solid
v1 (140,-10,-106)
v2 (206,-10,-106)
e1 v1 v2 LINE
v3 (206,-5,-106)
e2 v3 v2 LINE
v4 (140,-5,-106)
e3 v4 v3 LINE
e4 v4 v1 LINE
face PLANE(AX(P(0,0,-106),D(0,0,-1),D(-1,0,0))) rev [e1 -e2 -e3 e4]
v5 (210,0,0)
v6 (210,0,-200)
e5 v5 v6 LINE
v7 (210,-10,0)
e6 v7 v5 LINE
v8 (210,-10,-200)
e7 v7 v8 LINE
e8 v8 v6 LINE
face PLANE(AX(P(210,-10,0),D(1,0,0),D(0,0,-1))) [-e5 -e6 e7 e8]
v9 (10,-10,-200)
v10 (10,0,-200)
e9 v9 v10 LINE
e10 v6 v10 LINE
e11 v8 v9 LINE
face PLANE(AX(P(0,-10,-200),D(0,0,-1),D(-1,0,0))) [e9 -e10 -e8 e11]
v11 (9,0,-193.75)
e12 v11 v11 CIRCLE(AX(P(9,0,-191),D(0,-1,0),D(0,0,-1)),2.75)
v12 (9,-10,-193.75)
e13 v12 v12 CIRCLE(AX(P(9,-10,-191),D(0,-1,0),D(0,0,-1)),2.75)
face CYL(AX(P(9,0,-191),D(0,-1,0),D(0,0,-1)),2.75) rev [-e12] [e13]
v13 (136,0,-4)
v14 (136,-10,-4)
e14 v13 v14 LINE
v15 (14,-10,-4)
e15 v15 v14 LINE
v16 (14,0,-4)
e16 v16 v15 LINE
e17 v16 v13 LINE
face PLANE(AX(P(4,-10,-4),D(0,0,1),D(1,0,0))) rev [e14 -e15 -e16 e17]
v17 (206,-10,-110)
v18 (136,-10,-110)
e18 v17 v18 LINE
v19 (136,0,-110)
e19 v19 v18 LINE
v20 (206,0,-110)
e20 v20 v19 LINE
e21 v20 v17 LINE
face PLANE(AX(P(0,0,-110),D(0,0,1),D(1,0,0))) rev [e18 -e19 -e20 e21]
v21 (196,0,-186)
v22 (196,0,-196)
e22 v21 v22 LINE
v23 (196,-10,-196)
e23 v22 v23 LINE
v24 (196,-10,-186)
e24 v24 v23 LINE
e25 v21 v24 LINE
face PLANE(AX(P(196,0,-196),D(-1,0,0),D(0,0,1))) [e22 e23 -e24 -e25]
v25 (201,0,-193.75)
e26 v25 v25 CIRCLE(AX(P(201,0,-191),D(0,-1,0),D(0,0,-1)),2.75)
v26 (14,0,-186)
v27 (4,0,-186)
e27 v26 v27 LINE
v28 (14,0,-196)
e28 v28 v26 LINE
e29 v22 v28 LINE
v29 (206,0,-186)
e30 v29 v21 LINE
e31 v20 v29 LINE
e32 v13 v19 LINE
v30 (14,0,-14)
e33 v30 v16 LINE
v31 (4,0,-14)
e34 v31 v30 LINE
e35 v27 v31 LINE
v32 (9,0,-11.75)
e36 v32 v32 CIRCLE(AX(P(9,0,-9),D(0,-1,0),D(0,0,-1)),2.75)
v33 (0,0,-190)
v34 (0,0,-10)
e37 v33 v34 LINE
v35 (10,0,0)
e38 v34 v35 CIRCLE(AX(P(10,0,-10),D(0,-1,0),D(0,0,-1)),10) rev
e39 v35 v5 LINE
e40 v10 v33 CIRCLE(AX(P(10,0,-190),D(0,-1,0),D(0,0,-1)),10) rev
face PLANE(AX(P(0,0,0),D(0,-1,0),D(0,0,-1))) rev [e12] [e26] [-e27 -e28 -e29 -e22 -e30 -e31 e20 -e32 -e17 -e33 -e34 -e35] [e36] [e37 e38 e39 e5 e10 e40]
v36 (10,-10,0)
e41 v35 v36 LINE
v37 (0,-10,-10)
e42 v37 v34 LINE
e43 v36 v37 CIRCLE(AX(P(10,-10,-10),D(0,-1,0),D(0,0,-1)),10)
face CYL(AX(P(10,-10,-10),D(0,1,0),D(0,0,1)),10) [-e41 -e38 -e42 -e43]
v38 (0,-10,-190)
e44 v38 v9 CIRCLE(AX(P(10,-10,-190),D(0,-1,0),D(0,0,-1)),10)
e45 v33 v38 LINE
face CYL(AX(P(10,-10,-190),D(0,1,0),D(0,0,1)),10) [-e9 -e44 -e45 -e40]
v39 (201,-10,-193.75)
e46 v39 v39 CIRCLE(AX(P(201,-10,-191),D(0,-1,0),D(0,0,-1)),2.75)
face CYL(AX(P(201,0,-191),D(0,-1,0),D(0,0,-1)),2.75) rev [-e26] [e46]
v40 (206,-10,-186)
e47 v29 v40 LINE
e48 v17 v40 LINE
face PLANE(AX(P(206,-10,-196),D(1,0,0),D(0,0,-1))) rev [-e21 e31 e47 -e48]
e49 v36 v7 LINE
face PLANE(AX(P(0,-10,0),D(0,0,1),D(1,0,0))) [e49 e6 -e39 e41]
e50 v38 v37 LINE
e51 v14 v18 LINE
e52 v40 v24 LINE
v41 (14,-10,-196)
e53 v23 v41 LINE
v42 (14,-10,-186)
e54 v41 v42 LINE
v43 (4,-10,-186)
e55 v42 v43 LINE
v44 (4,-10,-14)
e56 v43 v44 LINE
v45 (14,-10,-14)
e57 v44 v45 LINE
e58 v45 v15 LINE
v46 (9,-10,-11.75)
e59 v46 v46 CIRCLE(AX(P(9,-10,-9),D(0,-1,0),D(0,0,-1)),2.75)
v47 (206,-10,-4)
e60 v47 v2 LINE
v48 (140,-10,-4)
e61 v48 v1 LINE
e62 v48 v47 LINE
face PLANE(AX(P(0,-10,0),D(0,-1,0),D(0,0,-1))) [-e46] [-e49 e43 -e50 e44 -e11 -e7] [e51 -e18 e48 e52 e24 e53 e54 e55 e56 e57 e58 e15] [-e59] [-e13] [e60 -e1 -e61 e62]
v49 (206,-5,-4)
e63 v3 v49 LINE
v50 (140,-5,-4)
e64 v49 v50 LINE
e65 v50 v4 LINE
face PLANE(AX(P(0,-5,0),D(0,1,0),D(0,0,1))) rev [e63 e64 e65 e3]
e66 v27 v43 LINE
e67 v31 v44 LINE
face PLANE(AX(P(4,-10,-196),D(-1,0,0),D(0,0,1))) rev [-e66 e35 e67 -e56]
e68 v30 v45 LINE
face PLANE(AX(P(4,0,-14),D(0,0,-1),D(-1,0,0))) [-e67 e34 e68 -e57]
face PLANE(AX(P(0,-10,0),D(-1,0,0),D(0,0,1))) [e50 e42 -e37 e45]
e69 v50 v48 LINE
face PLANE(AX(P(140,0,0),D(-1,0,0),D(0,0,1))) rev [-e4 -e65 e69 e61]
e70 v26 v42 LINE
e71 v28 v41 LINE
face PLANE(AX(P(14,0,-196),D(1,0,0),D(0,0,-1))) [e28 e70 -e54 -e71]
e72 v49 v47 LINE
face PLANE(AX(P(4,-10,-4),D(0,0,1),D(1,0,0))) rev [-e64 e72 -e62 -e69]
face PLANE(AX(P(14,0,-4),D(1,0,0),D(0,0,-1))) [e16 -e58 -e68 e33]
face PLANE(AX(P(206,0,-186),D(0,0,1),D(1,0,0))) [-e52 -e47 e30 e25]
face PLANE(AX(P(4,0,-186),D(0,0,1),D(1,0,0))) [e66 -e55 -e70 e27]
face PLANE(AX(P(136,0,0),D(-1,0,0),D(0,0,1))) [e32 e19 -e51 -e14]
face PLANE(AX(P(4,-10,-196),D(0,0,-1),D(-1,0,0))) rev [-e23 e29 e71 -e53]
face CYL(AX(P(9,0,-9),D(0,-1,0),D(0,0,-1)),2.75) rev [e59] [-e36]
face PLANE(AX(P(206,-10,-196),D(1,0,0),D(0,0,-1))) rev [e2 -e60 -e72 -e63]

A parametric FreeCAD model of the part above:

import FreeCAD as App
import Part
import Sketcher


def edges_at(feature, points):
    """Names of the edges that pass closest to the given points."""
    edges = feature.Shape.Edges
    near = lambda p: min(range(len(edges)), key=lambda i: edges[i].distToShape(Part.Vertex(*p))[0])
    return sorted({f"Edge{near(p) + 1}" for p in points})

doc = App.newDocument("Part")
body = doc.addObject("PartDesign::Body", "Body")

# Sketch on XZ plane
sketch1 = body.newObject("Sketcher::SketchObject", "Sketch")
sketch1.AttachmentSupport = (doc.getObject("XZ_Plane"), [""])
sketch1.MapMode = "FlatFace"
sketch1.addGeometry([
    Part.LineSegment(App.Vector(0, -200, 0), App.Vector(0, 0, 0)),  # 0
    Part.LineSegment(App.Vector(0, 0, 0), App.Vector(210, 0, 0)),  # 1
    Part.LineSegment(App.Vector(210, 0, 0), App.Vector(210, -200, 0)),  # 2
    Part.LineSegment(App.Vector(210, -200, 0), App.Vector(0, -200, 0)),  # 3
    Part.LineSegment(App.Vector(206, -4, 0), App.Vector(4, -4, 0)),  # 4
    Part.LineSegment(App.Vector(4, -4, 0), App.Vector(4, -196, 0)),  # 5
    Part.LineSegment(App.Vector(4, -196, 0), App.Vector(206, -196, 0)),  # 6
    Part.LineSegment(App.Vector(206, -196, 0), App.Vector(206, -4, 0)),  # 7
], False)
sketch1.addConstraint([
    Sketcher.Constraint("Coincident", 0, 2, 1, 1),
    Sketcher.Constraint("Coincident", 1, 2, 2, 1),
    Sketcher.Constraint("Coincident", 2, 2, 3, 1),
    Sketcher.Constraint("Coincident", 3, 2, 0, 1),
    Sketcher.Constraint("Coincident", 4, 2, 5, 1),
    Sketcher.Constraint("Coincident", 5, 2, 6, 1),
    Sketcher.Constraint("Coincident", 6, 2, 7, 1),
    Sketcher.Constraint("Coincident", 7, 2, 4, 1),
    Sketcher.Constraint("Vertical", 0),
    Sketcher.Constraint("Horizontal", 1),
    Sketcher.Constraint("Vertical", 2),
    Sketcher.Constraint("Horizontal", 3),
    Sketcher.Constraint("Horizontal", 4),
    Sketcher.Constraint("Vertical", 5),
    Sketcher.Constraint("Horizontal", 6),
    Sketcher.Constraint("Vertical", 7),
    Sketcher.Constraint("Coincident", 0, 2, -1, 1),
    Sketcher.Constraint("DistanceX", 1, 1, 1, 2, 210.0),
    Sketcher.Constraint("DistanceX", 4, 2, 4, 1, 202.0),
    Sketcher.Constraint("DistanceY", 0, 1, 0, 2, 200.0),
    Sketcher.Constraint("DistanceY", 5, 2, 5, 1, 192.0),
    Sketcher.Constraint("DistanceX", -1, 1, 4, 2, 4.0),
    Sketcher.Constraint("DistanceY", 4, 2, -1, 1, 4.0),
])
pad1 = body.newObject("PartDesign::Pad", "Pad")
pad1.Profile = sketch1
pad1.Length = 10

# Sketch on XZ plane
sketch2 = body.newObject("Sketcher::SketchObject", "Sketch001")
sketch2.AttachmentSupport = (doc.getObject("XZ_Plane"), [""])
sketch2.MapMode = "FlatFace"
sketch2.AttachmentOffset = App.Placement(App.Vector(0, 0, 10), App.Rotation())
sketch2.addGeometry([
    Part.LineSegment(App.Vector(140, 0, 0), App.Vector(140, -106, 0)),
    Part.LineSegment(App.Vector(140, -106, 0), App.Vector(210, -106, 0)),
    Part.LineSegment(App.Vector(210, -106, 0), App.Vector(210, 0, 0)),
    Part.LineSegment(App.Vector(210, 0, 0), App.Vector(140, 0, 0)),
], False)
sketch2.addConstraint([
    Sketcher.Constraint("Coincident", 0, 2, 1, 1),
    Sketcher.Constraint("Coincident", 1, 2, 2, 1),
    Sketcher.Constraint("Coincident", 2, 2, 3, 1),
    Sketcher.Constraint("Coincident", 3, 2, 0, 1),
    Sketcher.Constraint("Vertical", 0),
    Sketcher.Constraint("Horizontal", 1),
    Sketcher.Constraint("Vertical", 2),
    Sketcher.Constraint("Horizontal", 3),
    Sketcher.Constraint("PointOnObject", 2, 2, -1),
    Sketcher.Constraint("DistanceX", 1, 1, 1, 2, 70.0),
    Sketcher.Constraint("DistanceY", 0, 2, 0, 1, 106.0),
    Sketcher.Constraint("DistanceX", -1, 1, 0, 2, 140.0),
])
pad2 = body.newObject("PartDesign::Pad", "Pad001")
pad2.Profile = sketch2
pad2.Length = 10
pad2.Reversed = True

# Sketch on XZ plane
sketch3 = body.newObject("Sketcher::SketchObject", "Sketch002")
sketch3.AttachmentSupport = (doc.getObject("XZ_Plane"), [""])
sketch3.MapMode = "FlatFace"
sketch3.AttachmentOffset = App.Placement(App.Vector(0, 0, 10), App.Rotation())
sketch3.addGeometry([
    Part.LineSegment(App.Vector(140, -4, 0), App.Vector(140, -106, 0)),
    Part.LineSegment(App.Vector(140, -106, 0), App.Vector(206, -106, 0)),
    Part.LineSegment(App.Vector(206, -106, 0), App.Vector(206, -4, 0)),
    Part.LineSegment(App.Vector(206, -4, 0), App.Vector(140, -4, 0)),
], False)
sketch3.addConstraint([
    Sketcher.Constraint("Coincident", 0, 2, 1, 1),
    Sketcher.Constraint("Coincident", 1, 2, 2, 1),
    Sketcher.Constraint("Coincident", 2, 2, 3, 1),
    Sketcher.Constraint("Coincident", 3, 2, 0, 1),
    Sketcher.Constraint("Vertical", 0),
    Sketcher.Constraint("Horizontal", 1),
    Sketcher.Constraint("Vertical", 2),
    Sketcher.Constraint("Horizontal", 3),
    Sketcher.Constraint("DistanceX", 1, 1, 1, 2, 66.0),
    Sketcher.Constraint("DistanceY", 0, 2, 0, 1, 102.0),
    Sketcher.Constraint("DistanceX", -1, 1, 0, 2, 140.0),
    Sketcher.Constraint("DistanceY", 0, 2, -1, 1, 106.0),
])
pocket1 = body.newObject("PartDesign::Pocket", "Pocket")
pocket1.Profile = sketch3
pocket1.Length = 5

# Sketch on XZ plane
sketch4 = body.newObject("Sketcher::SketchObject", "Sketch003")
sketch4.AttachmentSupport = (doc.getObject("XZ_Plane"), [""])
sketch4.MapMode = "FlatFace"
sketch4.AttachmentOffset = App.Placement(App.Vector(0, 0, 10), App.Rotation())
sketch4.addGeometry([
    Part.LineSegment(App.Vector(4, -4, 0), App.Vector(4, -14, 0)),  # 0
    Part.LineSegment(App.Vector(4, -14, 0), App.Vector(14, -14, 0)),  # 1
    Part.LineSegment(App.Vector(14, -14, 0), App.Vector(14, -4, 0)),  # 2
    Part.LineSegment(App.Vector(14, -4, 0), App.Vector(4, -4, 0)),  # 3
    Part.Circle(App.Vector(9, -9, 0), App.Vector(0, 0, 1), 2.8),  # 4
    Part.LineSegment(App.Vector(4, -186, 0), App.Vector(4, -196, 0)),  # 5
    Part.LineSegment(App.Vector(4, -196, 0), App.Vector(14, -196, 0)),  # 6
    Part.LineSegment(App.Vector(14, -196, 0), App.Vector(14, -186, 0)),  # 7
    Part.LineSegment(App.Vector(14, -186, 0), App.Vector(4, -186, 0)),  # 8
    Part.Circle(App.Vector(9, -191, 0), App.Vector(0, 0, 1), 2.8),  # 9
    Part.LineSegment(App.Vector(196, -186, 0), App.Vector(196, -196, 0)),  # 10
    Part.LineSegment(App.Vector(196, -196, 0), App.Vector(206, -196, 0)),  # 11
    Part.LineSegment(App.Vector(206, -196, 0), App.Vector(206, -186, 0)),  # 12
    Part.LineSegment(App.Vector(206, -186, 0), App.Vector(196, -186, 0)),  # 13
    Part.Circle(App.Vector(201, -191, 0), App.Vector(0, 0, 1), 2.8),  # 14
], False)
sketch4.addConstraint([
    Sketcher.Constraint("Coincident", 0, 2, 1, 1),
    Sketcher.Constraint("Coincident", 1, 2, 2, 1),
    Sketcher.Constraint("Coincident", 2, 2, 3, 1),
    Sketcher.Constraint("Coincident", 3, 2, 0, 1),
    Sketcher.Constraint("Coincident", 5, 2, 6, 1),
    Sketcher.Constraint("Coincident", 6, 2, 7, 1),
    Sketcher.Constraint("Coincident", 7, 2, 8, 1),
    Sketcher.Constraint("Coincident", 8, 2, 5, 1),
    Sketcher.Constraint("Coincident", 10, 2, 11, 1),
    Sketcher.Constraint("Coincident", 11, 2, 12, 1),
    Sketcher.Constraint("Coincident", 12, 2, 13, 1),
    Sketcher.Constraint("Coincident", 13, 2, 10, 1),
    Sketcher.Constraint("Vertical", 0),
    Sketcher.Constraint("Horizontal", 1),
    Sketcher.Constraint("Vertical", 2),
    Sketcher.Constraint("Horizontal", 3),
    Sketcher.Constraint("Vertical", 5),
    Sketcher.Constraint("Horizontal", 6),
    Sketcher.Constraint("Vertical", 7),
    Sketcher.Constraint("Horizontal", 8),
    Sketcher.Constraint("Vertical", 10),
    Sketcher.Constraint("Horizontal", 11),
    Sketcher.Constraint("Vertical", 12),
    Sketcher.Constraint("Horizontal", 13),
    Sketcher.Constraint("Equal", 4, 9),
    Sketcher.Constraint("Equal", 9, 14),
    Sketcher.Constraint("Horizontal", 9, 3, 14, 3),
    Sketcher.Constraint("Horizontal", 6, 2, 10, 2),
    Sketcher.Constraint("Horizontal", 8, 2, 12, 2),
    Sketcher.Constraint("Vertical", 4, 3, 9, 3),
    Sketcher.Constraint("Vertical", 3, 2, 5, 2),
    Sketcher.Constraint("Vertical", 2, 2, 6, 2),
    Sketcher.Constraint("Equal", 8, 11),
    Sketcher.Constraint("Equal", 13, 0),
    Sketcher.Constraint("Equal", 2, 5),
    Sketcher.Constraint("Diameter", 4, 5.5),
    Sketcher.Constraint("DistanceX", 1, 1, 1, 2, 10.0),
    Sketcher.Constraint("DistanceX", -1, 1, 4, 3, 9.0),
    Sketcher.Constraint("DistanceY", 4, 3, -1, 1, 9.0),
    Sketcher.Constraint("DistanceY", 9, 3, -1, 1, 191.0),
    Sketcher.Constraint("DistanceX", -1, 1, 14, 3, 201.0),
    Sketcher.Constraint("DistanceX", -1, 1, 0, 2, 4.0),
    Sketcher.Constraint("DistanceY", 0, 2, -1, 1, 14.0),
    Sketcher.Constraint("DistanceY", 5, 2, -1, 1, 196.0),
    Sketcher.Constraint("DistanceX", -1, 1, 10, 2, 196.0),
])
pad3 = body.newObject("PartDesign::Pad", "Pad002")
pad3.Profile = sketch4
pad3.Length = 10
pad3.Reversed = True
doc.recompute()

fillet = body.newObject("PartDesign::Fillet", "Fillet")
fillet.Base = (pad3, edges_at(pad3, [(0, -5, -200), (0, -5, 0)]))
fillet.Radius = 10

# Sketch on XZ plane
sketch5 = body.newObject("Sketcher::SketchObject", "Sketch004")
sketch5.AttachmentSupport = (doc.getObject("XZ_Plane"), [""])
sketch5.MapMode = "FlatFace"
sketch5.AttachmentOffset = App.Placement(App.Vector(0, 0, 5), App.Rotation())
sketch5.addGeometry([
    Part.LineSegment(App.Vector(206, -110, 0), App.Vector(206, -106, 0)),  # 0
    Part.LineSegment(App.Vector(206, -106, 0), App.Vector(140, -106, 0)),  # 1
    Part.LineSegment(App.Vector(140, -106, 0), App.Vector(140, -4, 0)),  # 2
    Part.LineSegment(App.Vector(140, -4, 0), App.Vector(136, -4, 0)),  # 3
    Part.LineSegment(App.Vector(136, -4, 0), App.Vector(136, -110, 0)),  # 4
    Part.LineSegment(App.Vector(136, -110, 0), App.Vector(206, -110, 0)),  # 5
], False)
sketch5.addConstraint([
    Sketcher.Constraint("Coincident", 0, 2, 1, 1),
    Sketcher.Constraint("Coincident", 1, 2, 2, 1),
    Sketcher.Constraint("Coincident", 2, 2, 3, 1),
    Sketcher.Constraint("Coincident", 3, 2, 4, 1),
    Sketcher.Constraint("Coincident", 4, 2, 5, 1),
    Sketcher.Constraint("Coincident", 5, 2, 0, 1),
    Sketcher.Constraint("Vertical", 0),
    Sketcher.Constraint("Horizontal", 1),
    Sketcher.Constraint("Vertical", 2),
    Sketcher.Constraint("Horizontal", 3),
    Sketcher.Constraint("Vertical", 4),
    Sketcher.Constraint("Horizontal", 5),
    Sketcher.Constraint("Equal", 3, 0),
    Sketcher.Constraint("DistanceX", 1, 2, 1, 1, 66.0),
    Sketcher.Constraint("DistanceX", 3, 2, 3, 1, 4.0),
    Sketcher.Constraint("DistanceY", 2, 1, 2, 2, 102.0),
    Sketcher.Constraint("DistanceX", -1, 1, 0, 2, 206.0),
    Sketcher.Constraint("DistanceY", 0, 2, -1, 1, 106.0),
])
pad4 = body.newObject("PartDesign::Pad", "Pad003")
pad4.Profile = sketch5
pad4.Type = "TwoLengths"
pad4.Length = 5
pad4.Length2 = 5

doc.recompute()
